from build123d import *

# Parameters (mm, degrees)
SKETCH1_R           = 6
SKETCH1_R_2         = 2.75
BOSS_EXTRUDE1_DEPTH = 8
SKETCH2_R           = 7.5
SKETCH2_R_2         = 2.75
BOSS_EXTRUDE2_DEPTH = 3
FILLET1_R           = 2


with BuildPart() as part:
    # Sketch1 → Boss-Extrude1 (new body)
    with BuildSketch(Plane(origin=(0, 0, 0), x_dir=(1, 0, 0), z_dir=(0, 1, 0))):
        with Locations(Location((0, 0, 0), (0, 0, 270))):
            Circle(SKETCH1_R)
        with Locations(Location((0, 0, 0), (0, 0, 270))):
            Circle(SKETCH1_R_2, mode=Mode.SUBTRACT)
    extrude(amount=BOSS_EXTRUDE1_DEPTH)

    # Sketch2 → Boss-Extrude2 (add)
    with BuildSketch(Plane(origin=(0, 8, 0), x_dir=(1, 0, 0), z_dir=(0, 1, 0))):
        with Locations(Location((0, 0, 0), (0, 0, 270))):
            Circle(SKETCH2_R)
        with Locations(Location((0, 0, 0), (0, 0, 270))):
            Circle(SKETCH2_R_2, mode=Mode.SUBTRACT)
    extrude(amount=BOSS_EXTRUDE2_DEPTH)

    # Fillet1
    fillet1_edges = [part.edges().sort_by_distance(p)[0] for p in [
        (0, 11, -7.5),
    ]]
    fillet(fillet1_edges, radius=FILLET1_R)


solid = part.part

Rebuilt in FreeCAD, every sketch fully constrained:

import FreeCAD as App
import Part
import Sketcher

V = App.Vector
Q = App.Units.Quantity


def edges_at(feature, points):
    """Names of the edges that pass closest to the given points."""
    edges = feature.Shape.Edges
    near = lambda p: min(range(len(edges)), key=lambda i: edges[i].distToShape(Part.Vertex(*p))[0])
    return sorted({f"Edge{near(p) + 1}" for p in points})

doc = App.newDocument("Part")
body = doc.addObject("PartDesign::Body", "Body")

# Sketch on XZ plane
sketch1 = body.newObject("Sketcher::SketchObject", "Sketch")
sketch1.AttachmentSupport = (doc.getObject("XZ_Plane"), [""])
sketch1.MapMode = "FlatFace"
sketch1.addGeometry(Part.Circle(V(0, 0, 0), V(0, 0, 1), 6), False)
sketch1.addGeometry(Part.Circle(V(0, 0, 0), V(0, 0, 1), 2.8), False)
sketch1.addConstraint(Sketcher.Constraint("Coincident", 0, 3, -1, 1))
sketch1.addConstraint(Sketcher.Constraint("Coincident", 1, 3, -1, 1))
sketch1.addConstraint(Sketcher.Constraint("Diameter", 0, Q("12 mm")))
sketch1.addConstraint(Sketcher.Constraint("Diameter", 1, Q("5.5 mm")))
pad1 = body.newObject("PartDesign::Pad", "Pad")
pad1.Profile = sketch1
pad1.Length = 8
pad1.Reversed = True

# Sketch on XZ plane
sketch2 = body.newObject("Sketcher::SketchObject", "Sketch001")
sketch2.AttachmentSupport = (doc.getObject("XZ_Plane"), [""])
sketch2.MapMode = "FlatFace"
sketch2.AttachmentOffset = App.Placement(V(0, 0, -8), App.Rotation())
sketch2.addGeometry(Part.Circle(V(0, 0, 0), V(0, 0, 1), 7.5), False)
sketch2.addGeometry(Part.Circle(V(0, 0, 0), V(0, 0, 1), 2.8), False)
sketch2.addConstraint(Sketcher.Constraint("Coincident", 0, 3, -1, 1))
sketch2.addConstraint(Sketcher.Constraint("Coincident", 1, 3, -1, 1))
sketch2.addConstraint(Sketcher.Constraint("Diameter", 0, Q("15 mm")))
sketch2.addConstraint(Sketcher.Constraint("Diameter", 1, Q("5.5 mm")))
pad2 = body.newObject("PartDesign::Pad", "Pad001")
pad2.Profile = sketch2
pad2.Length = 3
pad2.Reversed = True
doc.recompute()

fillet = body.newObject("PartDesign::Fillet", "Fillet")
fillet.Base = (pad2, edges_at(pad2, [(0, 11, -7.5)]))
fillet.Radius = 2

doc.recompute()
